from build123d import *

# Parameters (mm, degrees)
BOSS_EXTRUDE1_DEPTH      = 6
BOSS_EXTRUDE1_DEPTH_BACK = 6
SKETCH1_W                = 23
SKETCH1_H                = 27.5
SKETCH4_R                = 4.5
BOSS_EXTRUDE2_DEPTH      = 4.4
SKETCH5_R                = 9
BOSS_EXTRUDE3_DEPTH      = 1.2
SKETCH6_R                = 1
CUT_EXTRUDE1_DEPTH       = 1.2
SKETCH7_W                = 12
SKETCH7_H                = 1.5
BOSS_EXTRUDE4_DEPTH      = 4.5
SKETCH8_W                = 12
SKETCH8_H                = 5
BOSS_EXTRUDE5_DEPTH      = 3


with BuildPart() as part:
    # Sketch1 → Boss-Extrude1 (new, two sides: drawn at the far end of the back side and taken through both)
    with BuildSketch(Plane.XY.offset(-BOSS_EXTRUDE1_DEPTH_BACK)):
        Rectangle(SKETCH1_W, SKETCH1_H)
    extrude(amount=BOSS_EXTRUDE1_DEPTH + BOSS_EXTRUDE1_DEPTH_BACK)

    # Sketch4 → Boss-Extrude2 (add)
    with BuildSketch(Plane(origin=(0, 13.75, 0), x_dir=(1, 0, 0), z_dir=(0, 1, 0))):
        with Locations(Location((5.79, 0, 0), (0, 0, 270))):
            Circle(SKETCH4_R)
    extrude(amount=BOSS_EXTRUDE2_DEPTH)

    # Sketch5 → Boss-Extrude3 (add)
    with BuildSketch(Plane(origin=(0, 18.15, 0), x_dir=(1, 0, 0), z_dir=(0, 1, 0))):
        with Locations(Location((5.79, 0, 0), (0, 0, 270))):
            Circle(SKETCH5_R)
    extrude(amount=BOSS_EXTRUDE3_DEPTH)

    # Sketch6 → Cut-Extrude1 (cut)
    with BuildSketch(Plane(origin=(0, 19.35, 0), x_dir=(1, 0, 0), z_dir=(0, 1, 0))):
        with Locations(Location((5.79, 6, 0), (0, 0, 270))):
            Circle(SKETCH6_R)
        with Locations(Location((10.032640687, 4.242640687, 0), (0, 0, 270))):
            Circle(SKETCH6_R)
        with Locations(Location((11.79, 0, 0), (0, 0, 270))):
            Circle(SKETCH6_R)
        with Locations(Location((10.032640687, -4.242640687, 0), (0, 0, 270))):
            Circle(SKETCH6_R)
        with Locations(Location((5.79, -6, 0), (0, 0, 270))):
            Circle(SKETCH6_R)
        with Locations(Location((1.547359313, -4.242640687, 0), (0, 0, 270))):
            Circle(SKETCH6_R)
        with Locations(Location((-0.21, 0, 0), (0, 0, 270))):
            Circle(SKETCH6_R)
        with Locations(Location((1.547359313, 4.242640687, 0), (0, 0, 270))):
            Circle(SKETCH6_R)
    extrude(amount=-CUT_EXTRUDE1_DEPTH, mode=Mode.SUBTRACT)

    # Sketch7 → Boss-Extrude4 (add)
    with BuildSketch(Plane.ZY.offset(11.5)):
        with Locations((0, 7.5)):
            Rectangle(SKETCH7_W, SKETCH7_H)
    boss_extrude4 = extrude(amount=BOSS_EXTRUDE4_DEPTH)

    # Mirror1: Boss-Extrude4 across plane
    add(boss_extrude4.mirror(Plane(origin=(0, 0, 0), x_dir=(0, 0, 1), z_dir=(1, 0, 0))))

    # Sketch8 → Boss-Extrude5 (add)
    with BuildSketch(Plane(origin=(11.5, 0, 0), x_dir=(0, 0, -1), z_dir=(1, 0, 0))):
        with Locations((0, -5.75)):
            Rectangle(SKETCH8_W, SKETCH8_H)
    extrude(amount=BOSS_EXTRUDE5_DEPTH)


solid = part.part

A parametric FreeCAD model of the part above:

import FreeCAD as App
import Part
import Sketcher
from FreeCAD import Vector


def add_polygon(sketch, points):
    """Adds a closed chain of lines whose ends are joined by coincident constraints."""
    first, n = sketch.GeometryCount, len(points)
    for a, b in zip(points, points[1:] + points[:1]):
        sketch.addGeometry(Part.LineSegment(App.Vector(*a, 0), App.Vector(*b, 0)), False)
    for i in range(n):
        sketch.addConstraint(Sketcher.Constraint("Coincident", first + i, 2, first + (i + 1) % n, 1))

doc = App.newDocument("Part")
body = doc.addObject("PartDesign::Body", "Body")

# Sketch on XY plane
sketch1 = body.newObject("Sketcher::SketchObject", "Sketch")
sketch1.AttachmentSupport = (doc.getObject("XY_Plane"), [""])
sketch1.MapMode = "FlatFace"
add_polygon(sketch1, [(-12, 14), (-12, -14), (12, -14), (12, 14)])  # lines 0-3
sketch1.addConstraint(Sketcher.Constraint("Vertical", 0))
sketch1.addConstraint(Sketcher.Constraint("Horizontal", 1))
sketch1.addConstraint(Sketcher.Constraint("Vertical", 2))
sketch1.addConstraint(Sketcher.Constraint("Horizontal", 3))
sketch1.addConstraint(Sketcher.Constraint("Symmetric", 0, 2, 2, 2, -1, 1))
sketch1.addConstraint(Sketcher.Constraint("DistanceX", 1, 1, 1, 2, 23.0))
sketch1.addConstraint(Sketcher.Constraint("DistanceY", 0, 2, 0, 1, 27.5))
pad1 = body.newObject("PartDesign::Pad", "Pad")
pad1.Profile = sketch1
pad1.Type = "TwoLengths"
pad1.Length = 6
pad1.Length2 = 6

# Sketch on XZ plane
sketch2 = body.newObject("Sketcher::SketchObject", "Sketch001")
sketch2.AttachmentSupport = (doc.getObject("XZ_Plane"), [""])
sketch2.MapMode = "FlatFace"
sketch2.AttachmentOffset = App.Placement(Vector(0, 0, -13.75), App.Rotation())
sketch2.addGeometry(Part.Circle(Vector(5.8, 0, 0), Vector(0, 0, 1), 4.5), False)
sketch2.addConstraint(Sketcher.Constraint("PointOnObject", 0, 3, -1))
sketch2.addConstraint(Sketcher.Constraint("Diameter", 0, 9.0))
sketch2.addConstraint(Sketcher.Constraint("DistanceX", -1, 1, 0, 3, 5.79))
pad2 = body.newObject("PartDesign::Pad", "Pad001")
pad2.Profile = sketch2
pad2.Length = 4.4
pad2.Reversed = True

# Sketch on XZ plane
sketch3 = body.newObject("Sketcher::SketchObject", "Sketch002")
sketch3.AttachmentSupport = (doc.getObject("XZ_Plane"), [""])
sketch3.MapMode = "FlatFace"
sketch3.AttachmentOffset = App.Placement(Vector(0, 0, -18.15), App.Rotation())
sketch3.addGeometry(Part.Circle(Vector(6, 0, 0), Vector(0, 0, 1), 9), False)
sketch3.addConstraint(Sketcher.Constraint("PointOnObject", 0, 3, -1))
sketch3.addConstraint(Sketcher.Constraint("Diameter", 0, 18.0))
sketch3.addConstraint(Sketcher.Constraint("DistanceX", -1, 1, 0, 3, 5.79))
pad3 = body.newObject("PartDesign::Pad", "Pad002")
pad3.Profile = sketch3
pad3.Length = 1.2
pad3.Reversed = True

# Sketch on XZ plane
sketch4 = body.newObject("Sketcher::SketchObject", "Sketch003")
sketch4.AttachmentSupport = (doc.getObject("XZ_Plane"), [""])
sketch4.MapMode = "FlatFace"
sketch4.AttachmentOffset = App.Placement(Vector(0, 0, -19.35), App.Rotation())
sketch4.addGeometry(Part.Circle(Vector(5.8, -6, 0), Vector(0, 0, 1), 1), False)
sketch4.addGeometry(Part.Circle(Vector(10, -4.2, 0), Vector(0, 0, 1), 1), False)
sketch4.addGeometry(Part.Circle(Vector(11.8, 0, 0), Vector(0, 0, 1), 1), False)
sketch4.addGeometry(Part.Circle(Vector(10, 4.2, 0), Vector(0, 0, 1), 1), False)
sketch4.addGeometry(Part.Circle(Vector(5.8, 6, 0), Vector(0, 0, 1), 1), False)
sketch4.addGeometry(Part.Circle(Vector(1.5, 4.2, 0), Vector(0, 0, 1), 1), False)
sketch4.addGeometry(Part.Circle(Vector(-0.2, 0, 0), Vector(0, 0, 1), 1), False)
sketch4.addGeometry(Part.Circle(Vector(1.5, -4.2, 0), Vector(0, 0, 1), 1), False)
sketch4.addConstraint(Sketcher.Constraint("Equal", 0, 1))
sketch4.addConstraint(Sketcher.Constraint("Equal", 1, 2))
sketch4.addConstraint(Sketcher.Constraint("Equal", 2, 3))
sketch4.addConstraint(Sketcher.Constraint("Equal", 3, 4))
sketch4.addConstraint(Sketcher.Constraint("Equal", 4, 5))
sketch4.addConstraint(Sketcher.Constraint("Equal", 5, 6))
sketch4.addConstraint(Sketcher.Constraint("Equal", 6, 7))
sketch4.addConstraint(Sketcher.Constraint("Symmetric", 1, 3, 3, 3, -1))
sketch4.addConstraint(Sketcher.Constraint("Symmetric", 0, 3, 4, 3, -1))
sketch4.addConstraint(Sketcher.Constraint("Symmetric", 5, 3, 7, 3, -1))
sketch4.addConstraint(Sketcher.Constraint("PointOnObject", 2, 3, -1))
sketch4.addConstraint(Sketcher.Constraint("PointOnObject", 6, 3, -1))
sketch4.addConstraint(Sketcher.Constraint("Horizontal", 3, 3, 5, 3))
sketch4.addConstraint(Sketcher.Constraint("Diameter", 0, 2.0))
sketch4.addConstraint(Sketcher.Constraint("DistanceY", 0, 3, -1, 1, 6.0))
sketch4.addConstraint(Sketcher.Constraint("DistanceX", 0, 3, 2, 3, 6.0))
sketch4.addConstraint(Sketcher.Constraint("DistanceX", 6, 3, 0, 3, 6.0))
sketch4.addConstraint(Sketcher.Constraint("DistanceX", -1, 1, 0, 3, 5.79))
sketch4.addConstraint(Sketcher.Constraint("DistanceX", -1, 1, 1, 3, 10.032641))
sketch4.addConstraint(Sketcher.Constraint("DistanceY", 1, 3, -1, 1, 4.242641))
sketch4.addConstraint(Sketcher.Constraint("DistanceX", -1, 1, 5, 3, 1.547359))
pocket1 = body.newObject("PartDesign::Pocket", "Pocket")
pocket1.Profile = sketch4
pocket1.Length = 1.2
pocket1.Reversed = True

# Sketch on YZ plane
sketch5 = body.newObject("Sketcher::SketchObject", "Sketch004")
sketch5.AttachmentSupport = (doc.getObject("YZ_Plane"), [""])
sketch5.MapMode = "FlatFace"
sketch5.AttachmentOffset = App.Placement(Vector(0, 0, -11.5), App.Rotation())
add_polygon(sketch5, [(8.2, -6), (6.8, -6), (6.8, 6), (8.2, 6)])  # lines 0-3
sketch5.addConstraint(Sketcher.Constraint("Horizontal", 0))
sketch5.addConstraint(Sketcher.Constraint("Vertical", 1))
sketch5.addConstraint(Sketcher.Constraint("Horizontal", 2))
sketch5.addConstraint(Sketcher.Constraint("Vertical", 3))
sketch5.addConstraint(Sketcher.Constraint("DistanceY", 1, 1, 1, 2, 12.0))
sketch5.addConstraint(Sketcher.Constraint("DistanceX", 0, 2, 0, 1, 1.5))
sketch5.addConstraint(Sketcher.Constraint("DistanceY", 0, 2, -1, 1, 6.0))
sketch5.addConstraint(Sketcher.Constraint("DistanceX", -1, 1, 0, 2, 6.75))
pad4 = body.newObject("PartDesign::Pad", "Pad003")
pad4.Profile = sketch5
pad4.Length = 4.5
pad4.Reversed = True
doc.recompute()

mirrored = body.newObject("PartDesign::Mirrored", "Mirrored")
mirrored.Originals = [pad4]
mirrored.MirrorPlane = (doc.getObject("YZ_Plane"), [""])
body.Tip = mirrored

# Sketch on YZ plane
sketch6 = body.newObject("Sketcher::SketchObject", "Sketch005")
sketch6.AttachmentSupport = (doc.getObject("YZ_Plane"), [""])
sketch6.MapMode = "FlatFace"
sketch6.AttachmentOffset = App.Placement(Vector(0, 0, 11.5), App.Rotation())
add_polygon(sketch6, [(-3, 6), (-8, 6), (-8, -6), (-3, -6)])  # lines 0-3
sketch6.addConstraint(Sketcher.Constraint("Horizontal", 0))
sketch6.addConstraint(Sketcher.Constraint("Vertical", 1))
sketch6.addConstraint(Sketcher.Constraint("Horizontal", 2))
sketch6.addConstraint(Sketcher.Constraint("Vertical", 3))
sketch6.addConstraint(Sketcher.Constraint("DistanceX", 0, 2, 0, 1, 5.0))
sketch6.addConstraint(Sketcher.Constraint("DistanceY", 1, 2, 1, 1, 12.0))
sketch6.addConstraint(Sketcher.Constraint("DistanceY", -1, 1, 0, 2, 6.0))
sketch6.addConstraint(Sketcher.Constraint("DistanceX", 0, 2, -1, 1, 8.25))
pad5 = body.newObject("PartDesign::Pad", "Pad004")
pad5.Profile = sketch6
pad5.Length = 3

doc.recompute()
